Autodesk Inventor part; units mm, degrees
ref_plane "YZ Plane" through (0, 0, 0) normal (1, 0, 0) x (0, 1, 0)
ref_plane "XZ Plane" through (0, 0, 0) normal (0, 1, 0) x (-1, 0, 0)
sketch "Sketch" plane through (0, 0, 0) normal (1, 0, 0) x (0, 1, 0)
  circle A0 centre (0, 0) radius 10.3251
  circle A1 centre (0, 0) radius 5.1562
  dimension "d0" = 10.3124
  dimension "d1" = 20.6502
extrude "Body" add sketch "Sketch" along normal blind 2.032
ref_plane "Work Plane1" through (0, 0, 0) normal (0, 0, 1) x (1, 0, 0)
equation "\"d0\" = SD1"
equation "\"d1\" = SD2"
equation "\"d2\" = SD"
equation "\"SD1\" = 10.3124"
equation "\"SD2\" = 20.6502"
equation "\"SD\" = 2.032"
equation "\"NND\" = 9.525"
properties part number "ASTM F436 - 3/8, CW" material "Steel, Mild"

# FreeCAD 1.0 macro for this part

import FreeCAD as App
import Part
import Sketcher

V = App.Vector
Q = App.Units.Quantity

doc = App.newDocument("Part")
body = doc.addObject("PartDesign::Body", "Body")

# Sketch on YZ plane
sketch1 = body.newObject("Sketcher::SketchObject", "Sketch")
sketch1.AttachmentSupport = (doc.getObject("YZ_Plane"), [""])
sketch1.MapMode = "FlatFace"
sketch1.addGeometry([
    Part.Circle(V(0, 0, 0), V(0, 0, 1), 10),
    Part.Circle(V(0, 0, 0), V(0, 0, 1), 5),
], False)
sketch1.addConstraint([
    Sketcher.Constraint("Coincident", 0, 3, -1, 1),
    Sketcher.Constraint("Coincident", 1, 3, -1, 1),
    Sketcher.Constraint("Diameter", 0, Q("0.813 in")),
    Sketcher.Constraint("Diameter", 1, Q("0.406 in")),
])
pad1 = body.newObject("PartDesign::Pad", "Pad")
pad1.Profile = sketch1
pad1.Length = Q("0.08 in")

doc.recompute()
